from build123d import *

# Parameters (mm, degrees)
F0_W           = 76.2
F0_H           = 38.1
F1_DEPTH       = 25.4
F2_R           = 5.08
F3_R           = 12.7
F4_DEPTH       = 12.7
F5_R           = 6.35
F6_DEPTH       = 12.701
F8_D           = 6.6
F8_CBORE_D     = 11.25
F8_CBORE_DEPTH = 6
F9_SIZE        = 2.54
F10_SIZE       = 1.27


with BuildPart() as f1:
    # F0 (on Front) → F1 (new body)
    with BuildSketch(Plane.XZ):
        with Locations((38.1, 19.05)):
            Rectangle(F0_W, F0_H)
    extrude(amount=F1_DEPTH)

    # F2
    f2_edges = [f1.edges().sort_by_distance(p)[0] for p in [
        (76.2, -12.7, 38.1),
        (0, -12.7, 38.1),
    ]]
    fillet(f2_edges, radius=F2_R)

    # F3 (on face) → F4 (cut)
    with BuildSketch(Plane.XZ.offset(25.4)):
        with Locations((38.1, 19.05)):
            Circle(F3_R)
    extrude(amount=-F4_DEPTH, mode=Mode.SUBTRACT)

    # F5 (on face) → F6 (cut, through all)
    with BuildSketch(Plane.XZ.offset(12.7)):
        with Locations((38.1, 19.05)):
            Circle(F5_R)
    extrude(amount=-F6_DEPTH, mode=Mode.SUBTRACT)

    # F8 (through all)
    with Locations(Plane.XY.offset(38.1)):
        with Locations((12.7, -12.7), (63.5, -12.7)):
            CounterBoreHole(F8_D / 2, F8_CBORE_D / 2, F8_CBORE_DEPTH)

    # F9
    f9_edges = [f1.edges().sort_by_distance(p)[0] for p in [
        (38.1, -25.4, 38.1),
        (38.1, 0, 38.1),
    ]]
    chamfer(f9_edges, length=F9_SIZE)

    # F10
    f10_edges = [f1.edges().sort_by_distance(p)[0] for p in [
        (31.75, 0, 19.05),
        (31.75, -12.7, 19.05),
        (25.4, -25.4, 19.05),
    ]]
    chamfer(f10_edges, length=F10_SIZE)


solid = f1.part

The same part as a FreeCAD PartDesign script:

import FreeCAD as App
import Part
import Sketcher
Q = App.Units.Quantity


def edges_at(feature, points):
    """Names of the edges that pass closest to the given points."""
    edges = feature.Shape.Edges
    near = lambda p: min(range(len(edges)), key=lambda i: edges[i].distToShape(Part.Vertex(*p))[0])
    return sorted({f"Edge{near(p) + 1}" for p in points})

doc = App.newDocument("Part")
body = doc.addObject("PartDesign::Body", "Body")

sketch1 = body.newObject("Sketcher::SketchObject", "Sketch")
sketch1.AttachmentSupport = (doc.getObject("XZ_Plane"), [""])
sketch1.MapMode = "FlatFace"
sketch1.addGeometry(Part.LineSegment(App.Vector(0, 38.1, 0), App.Vector(0, 0, 0)), False)
sketch1.addGeometry(Part.LineSegment(App.Vector(0, 0, 0), App.Vector(76.2, 0, 0)), False)
sketch1.addGeometry(Part.LineSegment(App.Vector(76.2, 0, 0), App.Vector(76.2, 38.1, 0)), False)
sketch1.addGeometry(Part.LineSegment(App.Vector(76.2, 38.1, 0), App.Vector(0, 38.1, 0)), False)
sketch1.addConstraint(Sketcher.Constraint("Coincident", 0, 2, 1, 1))
sketch1.addConstraint(Sketcher.Constraint("Coincident", 1, 2, 2, 1))
sketch1.addConstraint(Sketcher.Constraint("Coincident", 2, 2, 3, 1))
sketch1.addConstraint(Sketcher.Constraint("Coincident", 3, 2, 0, 1))
sketch1.addConstraint(Sketcher.Constraint("Vertical", 0))
sketch1.addConstraint(Sketcher.Constraint("Horizontal", 1))
sketch1.addConstraint(Sketcher.Constraint("Vertical", 2))
sketch1.addConstraint(Sketcher.Constraint("Horizontal", 3))
sketch1.addConstraint(Sketcher.Constraint("Coincident", 0, 2, -1, 1))
sketch1.addConstraint(Sketcher.Constraint("DistanceX", 1, 1, 1, 2, Q("3 in")))
sketch1.addConstraint(Sketcher.Constraint("DistanceY", 0, 2, 0, 1, Q("1.5 in")))
pad1 = body.newObject("PartDesign::Pad", "Pad")
pad1.Profile = sketch1
pad1.Length = Q("1 in")
doc.recompute()

fillet = body.newObject("PartDesign::Fillet", "Fillet")
fillet.Base = (pad1, edges_at(pad1, [(76.2, -12.7, 38.1), (0, -12.7, 38.1)]))
fillet.Radius = Q("0.2 in")

sketch2 = body.newObject("Sketcher::SketchObject", "Sketch001")
sketch2.AttachmentSupport = (doc.getObject("XZ_Plane"), [""])
sketch2.MapMode = "FlatFace"
sketch2.AttachmentOffset = App.Placement(App.Vector(0, 0, 1 * 25.4), App.Rotation())
sketch2.addGeometry(Part.Circle(App.Vector(38.1, 19.05, 0), App.Vector(0, 0, 1), 12.7), False)
sketch2.addConstraint(Sketcher.Constraint("Diameter", 0, Q("1 in")))
sketch2.addConstraint(Sketcher.Constraint("DistanceX", -1, 1, 0, 3, Q("1.5 in")))
sketch2.addConstraint(Sketcher.Constraint("DistanceY", -1, 1, 0, 3, Q("0.75 in")))
pocket1 = body.newObject("PartDesign::Pocket", "Pocket")
pocket1.Profile = sketch2
pocket1.Length = Q("0.5 in")

sketch3 = body.newObject("Sketcher::SketchObject", "Sketch002")
sketch3.AttachmentSupport = (doc.getObject("XZ_Plane"), [""])
sketch3.MapMode = "FlatFace"
sketch3.AttachmentOffset = App.Placement(App.Vector(0, 0, 0.5 * 25.4), App.Rotation())
sketch3.addGeometry(Part.Circle(App.Vector(38.1, 19.05, 0), App.Vector(0, 0, 1), 6.35), False)
sketch3.addConstraint(Sketcher.Constraint("Diameter", 0, Q("0.5 in")))
sketch3.addConstraint(Sketcher.Constraint("DistanceX", -1, 1, 0, 3, Q("1.5 in")))
sketch3.addConstraint(Sketcher.Constraint("DistanceY", -1, 1, 0, 3, Q("0.75 in")))
pocket2 = body.newObject("PartDesign::Pocket", "Pocket001")
pocket2.Profile = sketch3
pocket2.Type = "ThroughAll"

sketch4 = body.newObject("Sketcher::SketchObject", "Sketch003")
sketch4.AttachmentSupport = (doc.getObject("XY_Plane"), [""])
sketch4.MapMode = "FlatFace"
sketch4.AttachmentOffset = App.Placement(App.Vector(0, 0, 1.5 * 25.4), App.Rotation())
sketch4.addGeometry(Part.Circle(App.Vector(12.7, -12.7, 0), App.Vector(0, 0, 1), 3.3), False)
sketch4.addGeometry(Part.Circle(App.Vector(63.5, -12.7, 0), App.Vector(0, 0, 1), 3.3), False)
sketch4.addConstraint(Sketcher.Constraint("Equal", 0, 1))
sketch4.addConstraint(Sketcher.Constraint("Horizontal", 0, 3, 1, 3))
sketch4.addConstraint(Sketcher.Constraint("DistanceX", 0, 3, 1, 3, Q("2 in")))
sketch4.addConstraint(Sketcher.Constraint("DistanceX", -1, 1, 0, 3, Q("0.5 in")))
sketch4.addConstraint(Sketcher.Constraint("DistanceY", 0, 3, -1, 1, Q("0.5 in")))
sketch4.addConstraint(Sketcher.Constraint("Diameter", 0, 6.6))
doc.recompute()
hole = body.newObject("PartDesign::Hole", "Hole")
hole.Profile = sketch4
hole.ThreadType = "None"
hole.Diameter = 6.6
hole.DepthType = "ThroughAll"
hole.HoleCutType = "Counterbore"
hole.HoleCutDiameter = 11.25
hole.HoleCutDepth = 6
doc.recompute()

chamfer = body.newObject("PartDesign::Chamfer", "Chamfer")
chamfer.Base = (hole, edges_at(hole, [(38.1, -25.4, 38.1), (38.1, 0, 38.1)]))
chamfer.Size = Q("0.1 in")
doc.recompute()

chamfer2 = body.newObject("PartDesign::Chamfer", "Chamfer001")
chamfer2.Base = (chamfer, edges_at(chamfer, [(31.75, 0, 19.05), (31.75, -12.7, 19.05), (25.4, -25.4, 19.05)]))
chamfer2.Size = Q("0.05 in")

doc.recompute()
